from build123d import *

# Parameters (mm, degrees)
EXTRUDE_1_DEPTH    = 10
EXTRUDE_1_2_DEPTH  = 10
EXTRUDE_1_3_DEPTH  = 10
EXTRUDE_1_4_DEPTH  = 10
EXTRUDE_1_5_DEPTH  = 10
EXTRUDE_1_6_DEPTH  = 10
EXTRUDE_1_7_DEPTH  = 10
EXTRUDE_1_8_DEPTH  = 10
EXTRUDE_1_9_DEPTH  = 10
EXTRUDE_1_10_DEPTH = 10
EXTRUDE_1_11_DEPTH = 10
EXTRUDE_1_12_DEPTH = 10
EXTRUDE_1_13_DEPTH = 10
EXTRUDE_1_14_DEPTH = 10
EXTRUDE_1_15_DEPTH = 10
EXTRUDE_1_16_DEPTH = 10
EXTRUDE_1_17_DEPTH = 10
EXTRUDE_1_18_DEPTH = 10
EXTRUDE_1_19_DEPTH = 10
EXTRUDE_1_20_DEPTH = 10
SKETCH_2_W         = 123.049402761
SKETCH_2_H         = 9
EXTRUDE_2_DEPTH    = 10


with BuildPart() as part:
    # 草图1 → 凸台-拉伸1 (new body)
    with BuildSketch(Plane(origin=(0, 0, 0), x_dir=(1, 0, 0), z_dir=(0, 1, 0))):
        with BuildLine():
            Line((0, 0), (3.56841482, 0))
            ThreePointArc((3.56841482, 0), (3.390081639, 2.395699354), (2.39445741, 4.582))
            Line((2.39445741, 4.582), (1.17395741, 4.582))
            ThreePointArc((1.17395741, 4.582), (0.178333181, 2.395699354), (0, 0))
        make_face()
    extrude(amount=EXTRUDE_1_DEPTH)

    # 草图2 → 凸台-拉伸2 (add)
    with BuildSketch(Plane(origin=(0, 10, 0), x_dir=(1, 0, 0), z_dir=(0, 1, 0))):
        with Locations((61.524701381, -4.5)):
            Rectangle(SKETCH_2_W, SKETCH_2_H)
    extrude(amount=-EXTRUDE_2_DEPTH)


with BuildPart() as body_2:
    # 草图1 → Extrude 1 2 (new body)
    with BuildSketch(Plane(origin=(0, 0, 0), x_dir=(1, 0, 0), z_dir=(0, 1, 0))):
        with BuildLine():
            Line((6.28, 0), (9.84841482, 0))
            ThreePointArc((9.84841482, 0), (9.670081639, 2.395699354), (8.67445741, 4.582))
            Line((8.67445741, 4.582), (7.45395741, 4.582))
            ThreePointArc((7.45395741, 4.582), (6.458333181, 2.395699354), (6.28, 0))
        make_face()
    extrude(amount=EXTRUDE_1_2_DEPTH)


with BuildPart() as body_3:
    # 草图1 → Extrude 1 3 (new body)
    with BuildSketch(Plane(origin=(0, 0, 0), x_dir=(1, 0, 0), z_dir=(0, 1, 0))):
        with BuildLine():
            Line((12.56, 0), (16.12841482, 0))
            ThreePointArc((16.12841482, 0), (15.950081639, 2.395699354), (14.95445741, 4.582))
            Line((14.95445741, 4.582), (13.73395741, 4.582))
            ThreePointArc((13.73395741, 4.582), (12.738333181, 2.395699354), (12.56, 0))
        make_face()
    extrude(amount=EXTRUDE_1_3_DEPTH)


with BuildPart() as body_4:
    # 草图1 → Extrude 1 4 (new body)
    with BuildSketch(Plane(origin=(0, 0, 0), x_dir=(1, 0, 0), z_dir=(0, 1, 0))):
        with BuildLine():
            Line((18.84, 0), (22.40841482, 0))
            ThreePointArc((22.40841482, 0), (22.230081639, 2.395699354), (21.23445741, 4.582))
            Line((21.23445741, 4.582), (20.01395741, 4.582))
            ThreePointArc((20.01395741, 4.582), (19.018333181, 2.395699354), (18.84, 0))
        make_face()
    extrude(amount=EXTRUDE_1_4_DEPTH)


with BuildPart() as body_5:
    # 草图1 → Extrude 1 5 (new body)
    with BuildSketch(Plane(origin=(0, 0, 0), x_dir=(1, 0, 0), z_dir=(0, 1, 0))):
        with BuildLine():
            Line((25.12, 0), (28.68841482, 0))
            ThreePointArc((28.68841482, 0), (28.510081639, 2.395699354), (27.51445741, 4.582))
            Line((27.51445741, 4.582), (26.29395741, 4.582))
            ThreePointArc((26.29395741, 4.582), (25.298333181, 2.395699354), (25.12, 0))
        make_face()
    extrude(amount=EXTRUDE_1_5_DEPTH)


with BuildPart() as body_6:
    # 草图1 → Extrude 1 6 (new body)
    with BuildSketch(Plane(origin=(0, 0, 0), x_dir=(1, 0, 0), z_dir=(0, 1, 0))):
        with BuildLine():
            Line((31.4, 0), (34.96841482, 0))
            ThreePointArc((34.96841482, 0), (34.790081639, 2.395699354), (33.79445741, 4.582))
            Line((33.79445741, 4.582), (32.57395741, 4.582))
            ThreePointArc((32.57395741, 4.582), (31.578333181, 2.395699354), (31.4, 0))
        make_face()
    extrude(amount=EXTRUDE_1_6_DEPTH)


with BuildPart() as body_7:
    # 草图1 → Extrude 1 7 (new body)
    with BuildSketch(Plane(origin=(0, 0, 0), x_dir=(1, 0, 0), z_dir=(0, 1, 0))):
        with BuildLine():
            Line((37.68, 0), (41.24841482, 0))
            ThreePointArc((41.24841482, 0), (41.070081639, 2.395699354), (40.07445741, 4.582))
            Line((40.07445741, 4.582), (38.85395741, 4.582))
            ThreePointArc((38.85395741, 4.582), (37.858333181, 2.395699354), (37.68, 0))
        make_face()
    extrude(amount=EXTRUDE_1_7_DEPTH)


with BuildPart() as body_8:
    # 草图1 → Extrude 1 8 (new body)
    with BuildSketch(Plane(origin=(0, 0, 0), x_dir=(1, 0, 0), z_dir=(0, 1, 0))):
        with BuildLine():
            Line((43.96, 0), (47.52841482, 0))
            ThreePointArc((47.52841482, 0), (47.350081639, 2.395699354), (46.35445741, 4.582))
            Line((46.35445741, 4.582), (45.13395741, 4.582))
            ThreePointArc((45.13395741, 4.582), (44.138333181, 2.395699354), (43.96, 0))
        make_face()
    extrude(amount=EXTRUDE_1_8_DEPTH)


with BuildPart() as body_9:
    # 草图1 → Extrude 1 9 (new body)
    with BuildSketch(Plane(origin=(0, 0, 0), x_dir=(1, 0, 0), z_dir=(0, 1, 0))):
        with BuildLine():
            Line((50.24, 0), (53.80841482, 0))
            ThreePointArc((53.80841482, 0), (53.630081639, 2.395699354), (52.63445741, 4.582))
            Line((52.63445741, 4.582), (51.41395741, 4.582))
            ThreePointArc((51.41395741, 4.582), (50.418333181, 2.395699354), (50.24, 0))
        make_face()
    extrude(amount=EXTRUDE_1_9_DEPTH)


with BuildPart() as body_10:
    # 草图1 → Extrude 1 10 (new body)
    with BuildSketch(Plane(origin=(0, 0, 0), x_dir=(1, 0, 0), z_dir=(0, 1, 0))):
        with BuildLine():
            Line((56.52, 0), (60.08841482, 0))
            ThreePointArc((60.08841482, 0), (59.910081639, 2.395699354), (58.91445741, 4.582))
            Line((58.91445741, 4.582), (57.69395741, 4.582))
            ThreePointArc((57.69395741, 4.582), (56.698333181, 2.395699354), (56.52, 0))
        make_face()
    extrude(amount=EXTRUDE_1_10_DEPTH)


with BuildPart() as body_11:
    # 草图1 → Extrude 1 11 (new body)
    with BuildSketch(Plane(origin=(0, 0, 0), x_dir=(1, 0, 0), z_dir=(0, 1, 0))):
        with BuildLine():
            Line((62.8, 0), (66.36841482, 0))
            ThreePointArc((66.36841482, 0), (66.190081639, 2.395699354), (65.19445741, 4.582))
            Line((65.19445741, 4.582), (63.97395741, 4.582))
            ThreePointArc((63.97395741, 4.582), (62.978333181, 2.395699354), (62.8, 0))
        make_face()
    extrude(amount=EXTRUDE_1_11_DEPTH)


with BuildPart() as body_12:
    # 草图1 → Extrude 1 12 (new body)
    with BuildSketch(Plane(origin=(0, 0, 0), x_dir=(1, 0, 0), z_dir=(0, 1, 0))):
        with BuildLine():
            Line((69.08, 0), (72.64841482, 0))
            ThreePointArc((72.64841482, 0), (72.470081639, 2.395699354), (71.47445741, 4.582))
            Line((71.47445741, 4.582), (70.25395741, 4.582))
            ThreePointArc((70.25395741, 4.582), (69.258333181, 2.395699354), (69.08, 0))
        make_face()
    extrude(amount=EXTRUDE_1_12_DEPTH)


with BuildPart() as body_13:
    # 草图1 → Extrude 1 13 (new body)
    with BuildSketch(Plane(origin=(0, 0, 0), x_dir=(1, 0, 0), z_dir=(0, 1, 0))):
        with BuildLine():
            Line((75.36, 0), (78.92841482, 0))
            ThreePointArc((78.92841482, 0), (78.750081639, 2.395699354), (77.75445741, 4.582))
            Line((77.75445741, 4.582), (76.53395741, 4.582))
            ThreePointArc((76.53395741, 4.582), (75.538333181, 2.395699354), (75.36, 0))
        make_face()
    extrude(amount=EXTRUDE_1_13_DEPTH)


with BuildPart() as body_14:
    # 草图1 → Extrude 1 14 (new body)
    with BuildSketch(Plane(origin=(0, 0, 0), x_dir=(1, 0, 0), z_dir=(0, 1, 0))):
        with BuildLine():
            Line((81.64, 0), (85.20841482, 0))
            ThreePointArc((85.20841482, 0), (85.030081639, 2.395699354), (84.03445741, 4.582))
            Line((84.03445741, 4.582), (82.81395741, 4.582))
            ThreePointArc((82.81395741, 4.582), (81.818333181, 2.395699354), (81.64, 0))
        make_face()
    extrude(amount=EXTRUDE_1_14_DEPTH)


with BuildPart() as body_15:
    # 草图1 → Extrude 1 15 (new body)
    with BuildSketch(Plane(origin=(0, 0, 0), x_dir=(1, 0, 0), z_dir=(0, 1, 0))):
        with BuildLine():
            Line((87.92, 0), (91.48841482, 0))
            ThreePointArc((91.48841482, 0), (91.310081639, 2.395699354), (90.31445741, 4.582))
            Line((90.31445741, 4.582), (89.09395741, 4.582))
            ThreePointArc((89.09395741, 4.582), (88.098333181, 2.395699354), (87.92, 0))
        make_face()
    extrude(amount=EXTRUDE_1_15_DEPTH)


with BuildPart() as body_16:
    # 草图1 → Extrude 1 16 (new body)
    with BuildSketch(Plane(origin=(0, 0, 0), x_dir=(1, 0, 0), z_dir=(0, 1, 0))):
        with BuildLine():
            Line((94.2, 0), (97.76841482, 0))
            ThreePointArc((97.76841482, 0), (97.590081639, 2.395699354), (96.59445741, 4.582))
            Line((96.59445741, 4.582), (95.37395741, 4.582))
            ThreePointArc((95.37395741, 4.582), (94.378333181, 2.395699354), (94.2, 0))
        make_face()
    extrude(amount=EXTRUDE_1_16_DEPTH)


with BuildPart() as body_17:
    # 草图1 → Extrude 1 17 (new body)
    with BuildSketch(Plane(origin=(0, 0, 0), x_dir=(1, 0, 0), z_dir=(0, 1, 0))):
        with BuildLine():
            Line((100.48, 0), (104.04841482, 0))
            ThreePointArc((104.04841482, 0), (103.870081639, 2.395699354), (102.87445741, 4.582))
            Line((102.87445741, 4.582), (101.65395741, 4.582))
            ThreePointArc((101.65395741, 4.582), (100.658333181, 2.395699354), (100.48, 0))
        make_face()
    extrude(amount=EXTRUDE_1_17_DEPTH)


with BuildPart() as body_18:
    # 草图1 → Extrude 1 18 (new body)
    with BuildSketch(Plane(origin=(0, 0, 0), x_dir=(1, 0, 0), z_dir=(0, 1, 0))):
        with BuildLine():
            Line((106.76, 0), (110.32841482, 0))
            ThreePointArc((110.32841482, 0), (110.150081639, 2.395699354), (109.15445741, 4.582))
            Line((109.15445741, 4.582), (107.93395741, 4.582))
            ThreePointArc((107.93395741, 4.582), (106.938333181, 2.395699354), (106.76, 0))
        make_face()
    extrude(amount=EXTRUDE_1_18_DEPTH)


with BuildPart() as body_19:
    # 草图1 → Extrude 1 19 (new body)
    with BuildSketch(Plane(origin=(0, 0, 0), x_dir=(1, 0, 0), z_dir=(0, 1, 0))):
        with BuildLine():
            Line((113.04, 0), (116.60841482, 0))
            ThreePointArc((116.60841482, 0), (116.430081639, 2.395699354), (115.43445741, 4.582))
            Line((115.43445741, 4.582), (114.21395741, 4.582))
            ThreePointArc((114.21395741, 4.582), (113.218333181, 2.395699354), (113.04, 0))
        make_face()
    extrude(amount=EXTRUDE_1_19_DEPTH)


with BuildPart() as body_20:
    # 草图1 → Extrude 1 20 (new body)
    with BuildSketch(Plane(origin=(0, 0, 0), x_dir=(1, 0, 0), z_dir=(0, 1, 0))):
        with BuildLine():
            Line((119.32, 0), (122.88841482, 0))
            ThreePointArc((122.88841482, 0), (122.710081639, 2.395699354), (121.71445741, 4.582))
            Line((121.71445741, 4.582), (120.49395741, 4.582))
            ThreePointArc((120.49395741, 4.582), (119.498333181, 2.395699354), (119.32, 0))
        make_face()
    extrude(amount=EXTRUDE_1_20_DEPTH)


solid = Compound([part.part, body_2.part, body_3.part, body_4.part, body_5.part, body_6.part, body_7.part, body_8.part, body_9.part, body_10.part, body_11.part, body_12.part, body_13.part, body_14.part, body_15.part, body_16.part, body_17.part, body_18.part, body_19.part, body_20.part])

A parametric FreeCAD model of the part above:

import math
import FreeCAD as App
import Part
import Sketcher


def add_polygon(sketch, points):
    """Adds a closed chain of lines whose ends are joined by coincident constraints."""
    first, n = sketch.GeometryCount, len(points)
    for a, b in zip(points, points[1:] + points[:1]):
        sketch.addGeometry(Part.LineSegment(App.Vector(*a, 0), App.Vector(*b, 0)), False)
    for i in range(n):
        sketch.addConstraint(Sketcher.Constraint("Coincident", first + i, 2, first + (i + 1) % n, 1))

doc = App.newDocument("Part")
params = doc.addObject("Spreadsheet::Sheet", "Params")
for row, (alias, value) in enumerate([
    ("pad1_length", "10 mm"),
    ("sketch2_height", "9 mm"),
    ("pad2_length", "10 mm"),
    ("pad3_length", "10 mm"),
    ("pad4_length", "10 mm"),
    ("pad5_length", "10 mm"),
    ("pad6_length", "10 mm"),
    ("pad7_length", "10 mm"),
    ("pad8_length", "10 mm"),
    ("pad9_length", "10 mm"),
    ("pad10_length", "10 mm"),
    ("pad11_length", "10 mm"),
    ("pad12_length", "10 mm"),
    ("pad13_length", "10 mm"),
    ("pad14_length", "10 mm"),
    ("pad15_length", "10 mm"),
    ("pad16_length", "10 mm"),
    ("pad17_length", "10 mm"),
    ("pad18_length", "10 mm"),
    ("pad19_length", "10 mm"),
    ("pad20_length", "10 mm"),
    ("pad21_length", "10 mm"),
], start=1):
    params.set(f"A{row}", alias)
    params.set(f"B{row}", "=" + value)
    params.setAlias(f"B{row}", alias)

body = doc.addObject("PartDesign::Body", "Body")

# Sketch on XZ plane
sketch1 = doc.addObject("Sketcher::SketchObject", "Sketch")
body.addObject(sketch1)
sketch1.AttachmentSupport = (doc.XZ_Plane, [""])
sketch1.MapMode = "FlatFace"
sketch1.addGeometry([
    Part.LineSegment(App.Vector(0, 0, 0), App.Vector(3.6, 0, 0)),
    Part.ArcOfCircle(Part.Circle(App.Vector(-3.2, -0.7, 0), App.Vector(0, 0, 1), 6.8), math.radians(-35), math.radians(6)),
    Part.LineSegment(App.Vector(2.4, -4.6, 0), App.Vector(1.2, -4.6, 0)),
    Part.ArcOfCircle(Part.Circle(App.Vector(6.8, -0.7, 0), App.Vector(0, 0, 1), 6.8), math.radians(174), math.radians(215)),
], False)
sketch1.addConstraint([
    Sketcher.Constraint("Coincident", 0, 2, 1, 2),
    Sketcher.Constraint("Coincident", 1, 1, 2, 1),
    Sketcher.Constraint("Coincident", 2, 2, 3, 2),
    Sketcher.Constraint("Coincident", 3, 1, 0, 1),
    Sketcher.Constraint("Horizontal", 0),
    Sketcher.Constraint("Horizontal", 2),
    Sketcher.Constraint("Coincident", 3, 1, -1, 1),
    Sketcher.Constraint("Equal", 1, 3),
    Sketcher.Constraint("Horizontal", 1, 3, 3, 3),
    Sketcher.Constraint("DistanceX", 2, 2, 2, 1, 1.2205),
    Sketcher.Constraint("DistanceY", 1, 1, -1, 1, 4.582),
    Sketcher.Constraint("Radius", 1, 6.840403),
    Sketcher.Constraint("DistanceX", 0, 1, 0, 2, 3.568415),
])
pad1 = doc.addObject("PartDesign::Pad", "Pad")
body.addObject(pad1)
pad1.Profile = sketch1
pad1.setExpression("Length", "Params.pad1_length")
pad1.Reversed = True

# Sketch on XZ plane
sketch2 = doc.addObject("Sketcher::SketchObject", "Sketch001")
body.addObject(sketch2)
sketch2.AttachmentSupport = (doc.XZ_Plane, [""])
sketch2.MapMode = "FlatFace"
sketch2.AttachmentOffset = App.Placement(App.Vector(0, 0, -10), App.Rotation())
add_polygon(sketch2, [(0, 0), (0, 9), (123, 9), (123, 0)])  # lines 0-3
sketch2.addConstraint([
    Sketcher.Constraint("Vertical", 0),
    Sketcher.Constraint("Horizontal", 1),
    Sketcher.Constraint("Vertical", 2),
    Sketcher.Constraint("Horizontal", 3),
    Sketcher.Constraint("Coincident", 3, 2, -1, 1),
    Sketcher.Constraint("DistanceY", 0, 1, 0, 2, 9.0),
    Sketcher.Constraint("DistanceX", 1, 1, 1, 2, 123.049403),
])
sketch2.setExpression("Constraints[9]", "Params.sketch2_height")
pad2 = doc.addObject("PartDesign::Pad", "Pad001")
body.addObject(pad2)
pad2.Profile = sketch2
pad2.setExpression("Length", "Params.pad2_length")
body2 = doc.addObject("PartDesign::Body", "Body001")

# Sketch on XZ plane
sketch3 = doc.addObject("Sketcher::SketchObject", "Sketch002")
body2.addObject(sketch3)
sketch3.AttachmentSupport = (doc.getObject("XZ_Plane001"), [""])
sketch3.MapMode = "FlatFace"
sketch3.addGeometry([
    Part.LineSegment(App.Vector(6.3, 0, 0), App.Vector(9.8, 0, 0)),
    Part.ArcOfCircle(Part.Circle(App.Vector(3, -0.7, 0), App.Vector(0, 0, 1), 6.8), math.radians(-35), math.radians(6)),
    Part.LineSegment(App.Vector(8.7, -4.6, 0), App.Vector(7.5, -4.6, 0)),
    Part.ArcOfCircle(Part.Circle(App.Vector(13.1, -0.7, 0), App.Vector(0, 0, 1), 6.8), math.radians(174), math.radians(215)),
], False)
sketch3.addConstraint([
    Sketcher.Constraint("Coincident", 0, 2, 1, 2),
    Sketcher.Constraint("Coincident", 1, 1, 2, 1),
    Sketcher.Constraint("Coincident", 2, 2, 3, 2),
    Sketcher.Constraint("Coincident", 3, 1, 0, 1),
    Sketcher.Constraint("Horizontal", 0),
    Sketcher.Constraint("Horizontal", 2),
    Sketcher.Constraint("Equal", 1, 3),
    Sketcher.Constraint("PointOnObject", 0, 2, -1),
    Sketcher.Constraint("Horizontal", 1, 3, 3, 3),
    Sketcher.Constraint("DistanceX", -1, 1, 3, 1, 6.28),
    Sketcher.Constraint("DistanceX", 2, 2, 2, 1, 1.2205),
    Sketcher.Constraint("DistanceY", 1, 1, -1, 1, 4.582),
    Sketcher.Constraint("Radius", 1, 6.840403),
    Sketcher.Constraint("DistanceX", 0, 1, 0, 2, 3.568415),
])
pad3 = doc.addObject("PartDesign::Pad", "Pad002")
body2.addObject(pad3)
pad3.Profile = sketch3
pad3.setExpression("Length", "Params.pad3_length")
pad3.Reversed = True
body3 = doc.addObject("PartDesign::Body", "Body002")

# Sketch on XZ plane
sketch4 = doc.addObject("Sketcher::SketchObject", "Sketch003")
body3.addObject(sketch4)
sketch4.AttachmentSupport = (doc.getObject("XZ_Plane002"), [""])
sketch4.MapMode = "FlatFace"
sketch4.addGeometry([
    Part.LineSegment(App.Vector(12.6, 0, 0), App.Vector(16.1, 0, 0)),
    Part.ArcOfCircle(Part.Circle(App.Vector(9.3, -0.7, 0), App.Vector(0, 0, 1), 6.8), math.radians(-35), math.radians(6)),
    Part.LineSegment(App.Vector(15, -4.6, 0), App.Vector(13.7, -4.6, 0)),
    Part.ArcOfCircle(Part.Circle(App.Vector(19.4, -0.7, 0), App.Vector(0, 0, 1), 6.8), math.radians(174), math.radians(215)),
], False)
sketch4.addConstraint([
    Sketcher.Constraint("Coincident", 0, 2, 1, 2),
    Sketcher.Constraint("Coincident", 1, 1, 2, 1),
    Sketcher.Constraint("Coincident", 2, 2, 3, 2),
    Sketcher.Constraint("Coincident", 3, 1, 0, 1),
    Sketcher.Constraint("Horizontal", 0),
    Sketcher.Constraint("Horizontal", 2),
    Sketcher.Constraint("Equal", 1, 3),
    Sketcher.Constraint("PointOnObject", 0, 2, -1),
    Sketcher.Constraint("Horizontal", 1, 3, 3, 3),
    Sketcher.Constraint("DistanceX", -1, 1, 3, 1, 12.56),
    Sketcher.Constraint("DistanceX", 2, 2, 2, 1, 1.2205),
    Sketcher.Constraint("DistanceY", 1, 1, -1, 1, 4.582),
    Sketcher.Constraint("Radius", 1, 6.840403),
    Sketcher.Constraint("DistanceX", 0, 1, 0, 2, 3.568415),
])
pad4 = doc.addObject("PartDesign::Pad", "Pad003")
body3.addObject(pad4)
pad4.Profile = sketch4
pad4.setExpression("Length", "Params.pad4_length")
pad4.Reversed = True
body4 = doc.addObject("PartDesign::Body", "Body003")

# Sketch on XZ plane
sketch5 = doc.addObject("Sketcher::SketchObject", "Sketch004")
body4.addObject(sketch5)
sketch5.AttachmentSupport = (doc.getObject("XZ_Plane003"), [""])
sketch5.MapMode = "FlatFace"
sketch5.addGeometry([
    Part.LineSegment(App.Vector(18.8, 0, 0), App.Vector(22.4, 0, 0)),
    Part.ArcOfCircle(Part.Circle(App.Vector(15.6, -0.7, 0), App.Vector(0, 0, 1), 6.8), math.radians(-35), math.radians(6)),
    Part.LineSegment(App.Vector(21.2, -4.6, 0), App.Vector(20, -4.6, 0)),
    Part.ArcOfCircle(Part.Circle(App.Vector(25.6, -0.7, 0), App.Vector(0, 0, 1), 6.8), math.radians(174), math.radians(215)),
], False)
sketch5.addConstraint([
    Sketcher.Constraint("Coincident", 0, 2, 1, 2),
    Sketcher.Constraint("Coincident", 1, 1, 2, 1),
    Sketcher.Constraint("Coincident", 2, 2, 3, 2),
    Sketcher.Constraint("Coincident", 3, 1, 0, 1),
    Sketcher.Constraint("Horizontal", 0),
    Sketcher.Constraint("Horizontal", 2),
    Sketcher.Constraint("Equal", 1, 3),
    Sketcher.Constraint("PointOnObject", 0, 2, -1),
    Sketcher.Constraint("Horizontal", 1, 3, 3, 3),
    Sketcher.Constraint("DistanceX", -1, 1, 3, 1, 18.84),
    Sketcher.Constraint("DistanceX", 2, 2, 2, 1, 1.2205),
    Sketcher.Constraint("DistanceY", 1, 1, -1, 1, 4.582),
    Sketcher.Constraint("Radius", 1, 6.840403),
    Sketcher.Constraint("DistanceX", 0, 1, 0, 2, 3.568415),
])
pad5 = doc.addObject("PartDesign::Pad", "Pad004")
body4.addObject(pad5)
pad5.Profile = sketch5
pad5.setExpression("Length", "Params.pad5_length")
pad5.Reversed = True
body5 = doc.addObject("PartDesign::Body", "Body004")

# Sketch on XZ plane
sketch6 = doc.addObject("Sketcher::SketchObject", "Sketch005")
body5.addObject(sketch6)
sketch6.AttachmentSupport = (doc.getObject("XZ_Plane004"), [""])
sketch6.MapMode = "FlatFace"
sketch6.addGeometry([
    Part.LineSegment(App.Vector(25.1, 0, 0), App.Vector(28.7, 0, 0)),
    Part.ArcOfCircle(Part.Circle(App.Vector(21.9, -0.7, 0), App.Vector(0, 0, 1), 6.8), math.radians(-35), math.radians(6)),
    Part.LineSegment(App.Vector(27.5, -4.6, 0), App.Vector(26.3, -4.6, 0)),
    Part.ArcOfCircle(Part.Circle(App.Vector(31.9, -0.7, 0), App.Vector(0, 0, 1), 6.8), math.radians(174), math.radians(215)),
], False)
sketch6.addConstraint([
    Sketcher.Constraint("Coincident", 0, 2, 1, 2),
    Sketcher.Constraint("Coincident", 1, 1, 2, 1),
    Sketcher.Constraint("Coincident", 2, 2, 3, 2),
    Sketcher.Constraint("Coincident", 3, 1, 0, 1),
    Sketcher.Constraint("Horizontal", 0),
    Sketcher.Constraint("Horizontal", 2),
    Sketcher.Constraint("Equal", 1, 3),
    Sketcher.Constraint("PointOnObject", 0, 2, -1),
    Sketcher.Constraint("Horizontal", 1, 3, 3, 3),
    Sketcher.Constraint("DistanceX", -1, 1, 3, 1, 25.12),
    Sketcher.Constraint("DistanceX", 2, 2, 2, 1, 1.2205),
    Sketcher.Constraint("DistanceY", 1, 1, -1, 1, 4.582),
    Sketcher.Constraint("Radius", 1, 6.840403),
    Sketcher.Constraint("DistanceX", 0, 1, 0, 2, 3.568415),
])
pad6 = doc.addObject("PartDesign::Pad", "Pad005")
body5.addObject(pad6)
pad6.Profile = sketch6
pad6.setExpression("Length", "Params.pad6_length")
pad6.Reversed = True
body6 = doc.addObject("PartDesign::Body", "Body005")

# Sketch on XZ plane
sketch7 = doc.addObject("Sketcher::SketchObject", "Sketch006")
body6.addObject(sketch7)
sketch7.AttachmentSupport = (doc.getObject("XZ_Plane005"), [""])
sketch7.MapMode = "FlatFace"
sketch7.addGeometry([
    Part.LineSegment(App.Vector(31.4, 0, 0), App.Vector(35, 0, 0)),
    Part.ArcOfCircle(Part.Circle(App.Vector(28.2, -0.7, 0), App.Vector(0, 0, 1), 6.8), math.radians(-35), math.radians(6)),
    Part.LineSegment(App.Vector(33.8, -4.6, 0), App.Vector(32.6, -4.6, 0)),
    Part.ArcOfCircle(Part.Circle(App.Vector(38.2, -0.7, 0), App.Vector(0, 0, 1), 6.8), math.radians(174), math.radians(215)),
], False)
sketch7.addConstraint([
    Sketcher.Constraint("Coincident", 0, 2, 1, 2),
    Sketcher.Constraint("Coincident", 1, 1, 2, 1),
    Sketcher.Constraint("Coincident", 2, 2, 3, 2),
    Sketcher.Constraint("Coincident", 3, 1, 0, 1),
    Sketcher.Constraint("Horizontal", 0),
    Sketcher.Constraint("Horizontal", 2),
    Sketcher.Constraint("Equal", 1, 3),
    Sketcher.Constraint("PointOnObject", 0, 2, -1),
    Sketcher.Constraint("Horizontal", 1, 3, 3, 3),
    Sketcher.Constraint("DistanceX", -1, 1, 3, 1, 31.4),
    Sketcher.Constraint("DistanceX", 2, 2, 2, 1, 1.2205),
    Sketcher.Constraint("DistanceY", 1, 1, -1, 1, 4.582),
    Sketcher.Constraint("Radius", 1, 6.840403),
    Sketcher.Constraint("DistanceX", 0, 1, 0, 2, 3.568415),
])
pad7 = doc.addObject("PartDesign::Pad", "Pad006")
body6.addObject(pad7)
pad7.Profile = sketch7
pad7.setExpression("Length", "Params.pad7_length")
pad7.Reversed = True
body7 = doc.addObject("PartDesign::Body", "Body006")

# Sketch on XZ plane
sketch8 = doc.addObject("Sketcher::SketchObject", "Sketch007")
body7.addObject(sketch8)
sketch8.AttachmentSupport = (doc.getObject("XZ_Plane006"), [""])
sketch8.MapMode = "FlatFace"
sketch8.addGeometry([
    Part.LineSegment(App.Vector(37.7, 0, 0), App.Vector(41.2, 0, 0)),
    Part.ArcOfCircle(Part.Circle(App.Vector(34.4, -0.7, 0), App.Vector(0, 0, 1), 6.8), math.radians(-35), math.radians(6)),
    Part.LineSegment(App.Vector(40.1, -4.6, 0), App.Vector(38.9, -4.6, 0)),
    Part.ArcOfCircle(Part.Circle(App.Vector(44.5, -0.7, 0), App.Vector(0, 0, 1), 6.8), math.radians(174), math.radians(215)),
], False)
sketch8.addConstraint([
    Sketcher.Constraint("Coincident", 0, 2, 1, 2),
    Sketcher.Constraint("Coincident", 1, 1, 2, 1),
    Sketcher.Constraint("Coincident", 2, 2, 3, 2),
    Sketcher.Constraint("Coincident", 3, 1, 0, 1),
    Sketcher.Constraint("Horizontal", 0),
    Sketcher.Constraint("Horizontal", 2),
    Sketcher.Constraint("Equal", 1, 3),
    Sketcher.Constraint("PointOnObject", 0, 2, -1),
    Sketcher.Constraint("Horizontal", 1, 3, 3, 3),
    Sketcher.Constraint("DistanceX", -1, 1, 3, 1, 37.68),
    Sketcher.Constraint("DistanceX", 2, 2, 2, 1, 1.2205),
    Sketcher.Constraint("DistanceY", 1, 1, -1, 1, 4.582),
    Sketcher.Constraint("Radius", 1, 6.840403),
    Sketcher.Constraint("DistanceX", 0, 1, 0, 2, 3.568415),
])
pad8 = doc.addObject("PartDesign::Pad", "Pad007")
body7.addObject(pad8)
pad8.Profile = sketch8
pad8.setExpression("Length", "Params.pad8_length")
pad8.Reversed = True
body8 = doc.addObject("PartDesign::Body", "Body007")

# Sketch on XZ plane
sketch9 = doc.addObject("Sketcher::SketchObject", "Sketch008")
body8.addObject(sketch9)
sketch9.AttachmentSupport = (doc.getObject("XZ_Plane007"), [""])
sketch9.MapMode = "FlatFace"
sketch9.addGeometry([
    Part.LineSegment(App.Vector(44, 0, 0), App.Vector(47.5, 0, 0)),
    Part.ArcOfCircle(Part.Circle(App.Vector(40.7, -0.7, 0), App.Vector(0, 0, 1), 6.8), math.radians(-35), math.radians(6)),
    Part.LineSegment(App.Vector(46.4, -4.6, 0), App.Vector(45.1, -4.6, 0)),
    Part.ArcOfCircle(Part.Circle(App.Vector(50.8, -0.7, 0), App.Vector(0, 0, 1), 6.8), math.radians(174), math.radians(215)),
], False)
sketch9.addConstraint([
    Sketcher.Constraint("Coincident", 0, 2, 1, 2),
    Sketcher.Constraint("Coincident", 1, 1, 2, 1),
    Sketcher.Constraint("Coincident", 2, 2, 3, 2),
    Sketcher.Constraint("Coincident", 3, 1, 0, 1),
    Sketcher.Constraint("Horizontal", 0),
    Sketcher.Constraint("Horizontal", 2),
    Sketcher.Constraint("Equal", 1, 3),
    Sketcher.Constraint("PointOnObject", 0, 2, -1),
    Sketcher.Constraint("Horizontal", 1, 3, 3, 3),
    Sketcher.Constraint("DistanceX", -1, 1, 3, 1, 43.96),
    Sketcher.Constraint("DistanceX", 2, 2, 2, 1, 1.2205),
    Sketcher.Constraint("DistanceY", 1, 1, -1, 1, 4.582),
    Sketcher.Constraint("Radius", 1, 6.840403),
    Sketcher.Constraint("DistanceX", 0, 1, 0, 2, 3.568415),
])
pad9 = doc.addObject("PartDesign::Pad", "Pad008")
body8.addObject(pad9)
pad9.Profile = sketch9
pad9.setExpression("Length", "Params.pad9_length")
pad9.Reversed = True
body9 = doc.addObject("PartDesign::Body", "Body008")

# Sketch on XZ plane
sketch10 = doc.addObject("Sketcher::SketchObject", "Sketch009")
body9.addObject(sketch10)
sketch10.AttachmentSupport = (doc.getObject("XZ_Plane008"), [""])
sketch10.MapMode = "FlatFace"
sketch10.addGeometry([
    Part.LineSegment(App.Vector(50.2, 0, 0), App.Vector(53.8, 0, 0)),
    Part.ArcOfCircle(Part.Circle(App.Vector(47, -0.7, 0), App.Vector(0, 0, 1), 6.8), math.radians(-35), math.radians(6)),
    Part.LineSegment(App.Vector(52.6, -4.6, 0), App.Vector(51.4, -4.6, 0)),
    Part.ArcOfCircle(Part.Circle(App.Vector(57, -0.7, 0), App.Vector(0, 0, 1), 6.8), math.radians(174), math.radians(215)),
], False)
sketch10.addConstraint([
    Sketcher.Constraint("Coincident", 0, 2, 1, 2),
    Sketcher.Constraint("Coincident", 1, 1, 2, 1),
    Sketcher.Constraint("Coincident", 2, 2, 3, 2),
    Sketcher.Constraint("Coincident", 3, 1, 0, 1),
    Sketcher.Constraint("Horizontal", 0),
    Sketcher.Constraint("Horizontal", 2),
    Sketcher.Constraint("Equal", 1, 3),
    Sketcher.Constraint("PointOnObject", 0, 2, -1),
    Sketcher.Constraint("Horizontal", 1, 3, 3, 3),
    Sketcher.Constraint("DistanceX", -1, 1, 3, 1, 50.24),
    Sketcher.Constraint("DistanceX", 2, 2, 2, 1, 1.2205),
    Sketcher.Constraint("DistanceY", 1, 1, -1, 1, 4.582),
    Sketcher.Constraint("Radius", 1, 6.840403),
    Sketcher.Constraint("DistanceX", 0, 1, 0, 2, 3.568415),
])
pad10 = doc.addObject("PartDesign::Pad", "Pad009")
body9.addObject(pad10)
pad10.Profile = sketch10
pad10.setExpression("Length", "Params.pad10_length")
pad10.Reversed = True
body10 = doc.addObject("PartDesign::Body", "Body009")

# Sketch on XZ plane
sketch11 = doc.addObject("Sketcher::SketchObject", "Sketch010")
body10.addObject(sketch11)
sketch11.AttachmentSupport = (doc.getObject("XZ_Plane009"), [""])
sketch11.MapMode = "FlatFace"
sketch11.addGeometry([
    Part.LineSegment(App.Vector(56.5, 0, 0), App.Vector(60.1, 0, 0)),
    Part.ArcOfCircle(Part.Circle(App.Vector(53.3, -0.7, 0), App.Vector(0, 0, 1), 6.8), math.radians(-35), math.radians(6)),
    Part.LineSegment(App.Vector(58.9, -4.6, 0), App.Vector(57.7, -4.6, 0)),
    Part.ArcOfCircle(Part.Circle(App.Vector(63.3, -0.7, 0), App.Vector(0, 0, 1), 6.8), math.radians(174), math.radians(215)),
], False)
sketch11.addConstraint([
    Sketcher.Constraint("Coincident", 0, 2, 1, 2),
    Sketcher.Constraint("Coincident", 1, 1, 2, 1),
    Sketcher.Constraint("Coincident", 2, 2, 3, 2),
    Sketcher.Constraint("Coincident", 3, 1, 0, 1),
    Sketcher.Constraint("Horizontal", 0),
    Sketcher.Constraint("Horizontal", 2),
    Sketcher.Constraint("Equal", 1, 3),
    Sketcher.Constraint("PointOnObject", 0, 2, -1),
    Sketcher.Constraint("Horizontal", 1, 3, 3, 3),
    Sketcher.Constraint("DistanceX", -1, 1, 3, 1, 56.52),
    Sketcher.Constraint("DistanceX", 2, 2, 2, 1, 1.2205),
    Sketcher.Constraint("DistanceY", 1, 1, -1, 1, 4.582),
    Sketcher.Constraint("Radius", 1, 6.840403),
    Sketcher.Constraint("DistanceX", 0, 1, 0, 2, 3.568415),
])
pad11 = doc.addObject("PartDesign::Pad", "Pad010")
body10.addObject(pad11)
pad11.Profile = sketch11
pad11.setExpression("Length", "Params.pad11_length")
pad11.Reversed = True
body11 = doc.addObject("PartDesign::Body", "Body010")

# Sketch on XZ plane
sketch12 = doc.addObject("Sketcher::SketchObject", "Sketch011")
body11.addObject(sketch12)
sketch12.AttachmentSupport = (doc.getObject("XZ_Plane010"), [""])
sketch12.MapMode = "FlatFace"
sketch12.addGeometry([
    Part.LineSegment(App.Vector(62.8, 0, 0), App.Vector(66.4, 0, 0)),
    Part.ArcOfCircle(Part.Circle(App.Vector(59.6, -0.7, 0), App.Vector(0, 0, 1), 6.8), math.radians(-35), math.radians(6)),
    Part.LineSegment(App.Vector(65.2, -4.6, 0), App.Vector(64, -4.6, 0)),
    Part.ArcOfCircle(Part.Circle(App.Vector(69.6, -0.7, 0), App.Vector(0, 0, 1), 6.8), math.radians(174), math.radians(215)),
], False)
sketch12.addConstraint([
    Sketcher.Constraint("Coincident", 0, 2, 1, 2),
    Sketcher.Constraint("Coincident", 1, 1, 2, 1),
    Sketcher.Constraint("Coincident", 2, 2, 3, 2),
    Sketcher.Constraint("Coincident", 3, 1, 0, 1),
    Sketcher.Constraint("Horizontal", 0),
    Sketcher.Constraint("Horizontal", 2),
    Sketcher.Constraint("Equal", 1, 3),
    Sketcher.Constraint("PointOnObject", 0, 2, -1),
    Sketcher.Constraint("Horizontal", 1, 3, 3, 3),
    Sketcher.Constraint("DistanceX", -1, 1, 3, 1, 62.8),
    Sketcher.Constraint("DistanceX", 2, 2, 2, 1, 1.2205),
    Sketcher.Constraint("DistanceY", 1, 1, -1, 1, 4.582),
    Sketcher.Constraint("Radius", 1, 6.840403),
    Sketcher.Constraint("DistanceX", 0, 1, 0, 2, 3.568415),
])
pad12 = doc.addObject("PartDesign::Pad", "Pad011")
body11.addObject(pad12)
pad12.Profile = sketch12
pad12.setExpression("Length", "Params.pad12_length")
pad12.Reversed = True
body12 = doc.addObject("PartDesign::Body", "Body011")

# Sketch on XZ plane
sketch13 = doc.addObject("Sketcher::SketchObject", "Sketch012")
body12.addObject(sketch13)
sketch13.AttachmentSupport = (doc.getObject("XZ_Plane011"), [""])
sketch13.MapMode = "FlatFace"
sketch13.addGeometry([
    Part.LineSegment(App.Vector(69.1, 0, 0), App.Vector(72.6, 0, 0)),
    Part.ArcOfCircle(Part.Circle(App.Vector(65.8, -0.7, 0), App.Vector(0, 0, 1), 6.8), math.radians(-35), math.radians(6)),
    Part.LineSegment(App.Vector(71.5, -4.6, 0), App.Vector(70.3, -4.6, 0)),
    Part.ArcOfCircle(Part.Circle(App.Vector(75.9, -0.7, 0), App.Vector(0, 0, 1), 6.8), math.radians(174), math.radians(215)),
], False)
sketch13.addConstraint([
    Sketcher.Constraint("Coincident", 0, 2, 1, 2),
    Sketcher.Constraint("Coincident", 1, 1, 2, 1),
    Sketcher.Constraint("Coincident", 2, 2, 3, 2),
    Sketcher.Constraint("Coincident", 3, 1, 0, 1),
    Sketcher.Constraint("Horizontal", 0),
    Sketcher.Constraint("Horizontal", 2),
    Sketcher.Constraint("Equal", 1, 3),
    Sketcher.Constraint("PointOnObject", 0, 2, -1),
    Sketcher.Constraint("Horizontal", 1, 3, 3, 3),
    Sketcher.Constraint("DistanceX", -1, 1, 3, 1, 69.08),
    Sketcher.Constraint("DistanceX", 2, 2, 2, 1, 1.2205),
    Sketcher.Constraint("DistanceY", 1, 1, -1, 1, 4.582),
    Sketcher.Constraint("Radius", 1, 6.840403),
    Sketcher.Constraint("DistanceX", 0, 1, 0, 2, 3.568415),
])
pad13 = doc.addObject("PartDesign::Pad", "Pad012")
body12.addObject(pad13)
pad13.Profile = sketch13
pad13.setExpression("Length", "Params.pad13_length")
pad13.Reversed = True
body13 = doc.addObject("PartDesign::Body", "Body012")

# Sketch on XZ plane
sketch14 = doc.addObject("Sketcher::SketchObject", "Sketch013")
body13.addObject(sketch14)
sketch14.AttachmentSupport = (doc.getObject("XZ_Plane012"), [""])
sketch14.MapMode = "FlatFace"
sketch14.addGeometry([
    Part.LineSegment(App.Vector(75.4, 0, 0), App.Vector(78.9, 0, 0)),
    Part.ArcOfCircle(Part.Circle(App.Vector(72.1, -0.7, 0), App.Vector(0, 0, 1), 6.8), math.radians(-35), math.radians(6)),
    Part.LineSegment(App.Vector(77.8, -4.6, 0), App.Vector(76.5, -4.6, 0)),
    Part.ArcOfCircle(Part.Circle(App.Vector(82.2, -0.7, 0), App.Vector(0, 0, 1), 6.8), math.radians(174), math.radians(215)),
], False)
sketch14.addConstraint([
    Sketcher.Constraint("Coincident", 0, 2, 1, 2),
    Sketcher.Constraint("Coincident", 1, 1, 2, 1),
    Sketcher.Constraint("Coincident", 2, 2, 3, 2),
    Sketcher.Constraint("Coincident", 3, 1, 0, 1),
    Sketcher.Constraint("Horizontal", 0),
    Sketcher.Constraint("Horizontal", 2),
    Sketcher.Constraint("Equal", 1, 3),
    Sketcher.Constraint("PointOnObject", 0, 2, -1),
    Sketcher.Constraint("Horizontal", 1, 3, 3, 3),
    Sketcher.Constraint("DistanceX", -1, 1, 3, 1, 75.36),
    Sketcher.Constraint("DistanceX", 2, 2, 2, 1, 1.2205),
    Sketcher.Constraint("DistanceY", 1, 1, -1, 1, 4.582),
    Sketcher.Constraint("Radius", 1, 6.840403),
    Sketcher.Constraint("DistanceX", 0, 1, 0, 2, 3.568415),
])
pad14 = doc.addObject("PartDesign::Pad", "Pad013")
body13.addObject(pad14)
pad14.Profile = sketch14
pad14.setExpression("Length", "Params.pad14_length")
pad14.Reversed = True
body14 = doc.addObject("PartDesign::Body", "Body013")

# Sketch on XZ plane
sketch15 = doc.addObject("Sketcher::SketchObject", "Sketch014")
body14.addObject(sketch15)
sketch15.AttachmentSupport = (doc.getObject("XZ_Plane013"), [""])
sketch15.MapMode = "FlatFace"
sketch15.addGeometry([
    Part.LineSegment(App.Vector(81.6, 0, 0), App.Vector(85.2, 0, 0)),
    Part.ArcOfCircle(Part.Circle(App.Vector(78.4, -0.7, 0), App.Vector(0, 0, 1), 6.8), math.radians(-35), math.radians(6)),
    Part.LineSegment(App.Vector(84, -4.6, 0), App.Vector(82.8, -4.6, 0)),
    Part.ArcOfCircle(Part.Circle(App.Vector(88.4, -0.7, 0), App.Vector(0, 0, 1), 6.8), math.radians(174), math.radians(215)),
], False)
sketch15.addConstraint([
    Sketcher.Constraint("Coincident", 0, 2, 1, 2),
    Sketcher.Constraint("Coincident", 1, 1, 2, 1),
    Sketcher.Constraint("Coincident", 2, 2, 3, 2),
    Sketcher.Constraint("Coincident", 3, 1, 0, 1),
    Sketcher.Constraint("Horizontal", 0),
    Sketcher.Constraint("Horizontal", 2),
    Sketcher.Constraint("Equal", 1, 3),
    Sketcher.Constraint("PointOnObject", 0, 2, -1),
    Sketcher.Constraint("Horizontal", 1, 3, 3, 3),
    Sketcher.Constraint("DistanceX", -1, 1, 3, 1, 81.64),
    Sketcher.Constraint("DistanceX", 2, 2, 2, 1, 1.2205),
    Sketcher.Constraint("DistanceY", 1, 1, -1, 1, 4.582),
    Sketcher.Constraint("Radius", 1, 6.840403),
    Sketcher.Constraint("DistanceX", 0, 1, 0, 2, 3.568415),
])
pad15 = doc.addObject("PartDesign::Pad", "Pad014")
body14.addObject(pad15)
pad15.Profile = sketch15
pad15.setExpression("Length", "Params.pad15_length")
pad15.Reversed = True
body15 = doc.addObject("PartDesign::Body", "Body014")

# Sketch on XZ plane
sketch16 = doc.addObject("Sketcher::SketchObject", "Sketch015")
body15.addObject(sketch16)
sketch16.AttachmentSupport = (doc.getObject("XZ_Plane014"), [""])
sketch16.MapMode = "FlatFace"
sketch16.addGeometry([
    Part.LineSegment(App.Vector(87.9, 0, 0), App.Vector(91.5, 0, 0)),
    Part.ArcOfCircle(Part.Circle(App.Vector(84.7, -0.7, 0), App.Vector(0, 0, 1), 6.8), math.radians(-35), math.radians(6)),
    Part.LineSegment(App.Vector(90.3, -4.6, 0), App.Vector(89.1, -4.6, 0)),
    Part.ArcOfCircle(Part.Circle(App.Vector(94.7, -0.7, 0), App.Vector(0, 0, 1), 6.8), math.radians(174), math.radians(215)),
], False)
sketch16.addConstraint([
    Sketcher.Constraint("Coincident", 0, 2, 1, 2),
    Sketcher.Constraint("Coincident", 1, 1, 2, 1),
    Sketcher.Constraint("Coincident", 2, 2, 3, 2),
    Sketcher.Constraint("Coincident", 3, 1, 0, 1),
    Sketcher.Constraint("Horizontal", 0),
    Sketcher.Constraint("Horizontal", 2),
    Sketcher.Constraint("Equal", 1, 3),
    Sketcher.Constraint("PointOnObject", 0, 2, -1),
    Sketcher.Constraint("Horizontal", 1, 3, 3, 3),
    Sketcher.Constraint("DistanceX", -1, 1, 3, 1, 87.92),
    Sketcher.Constraint("DistanceX", 2, 2, 2, 1, 1.2205),
    Sketcher.Constraint("DistanceY", 1, 1, -1, 1, 4.582),
    Sketcher.Constraint("Radius", 1, 6.840403),
    Sketcher.Constraint("DistanceX", 0, 1, 0, 2, 3.568415),
])
pad16 = doc.addObject("PartDesign::Pad", "Pad015")
body15.addObject(pad16)
pad16.Profile = sketch16
pad16.setExpression("Length", "Params.pad16_length")
pad16.Reversed = True
body16 = doc.addObject("PartDesign::Body", "Body015")

# Sketch on XZ plane
sketch17 = doc.addObject("Sketcher::SketchObject", "Sketch016")
body16.addObject(sketch17)
sketch17.AttachmentSupport = (doc.getObject("XZ_Plane015"), [""])
sketch17.MapMode = "FlatFace"
sketch17.addGeometry([
    Part.LineSegment(App.Vector(94.2, 0, 0), App.Vector(97.8, 0, 0)),
    Part.ArcOfCircle(Part.Circle(App.Vector(91, -0.7, 0), App.Vector(0, 0, 1), 6.8), math.radians(-35), math.radians(6)),
    Part.LineSegment(App.Vector(96.6, -4.6, 0), App.Vector(95.4, -4.6, 0)),
    Part.ArcOfCircle(Part.Circle(App.Vector(101, -0.7, 0), App.Vector(0, 0, 1), 6.8), math.radians(174), math.radians(215)),
], False)
sketch17.addConstraint([
    Sketcher.Constraint("Coincident", 0, 2, 1, 2),
    Sketcher.Constraint("Coincident", 1, 1, 2, 1),
    Sketcher.Constraint("Coincident", 2, 2, 3, 2),
    Sketcher.Constraint("Coincident", 3, 1, 0, 1),
    Sketcher.Constraint("Horizontal", 0),
    Sketcher.Constraint("Horizontal", 2),
    Sketcher.Constraint("Equal", 1, 3),
    Sketcher.Constraint("PointOnObject", 0, 2, -1),
    Sketcher.Constraint("Horizontal", 1, 3, 3, 3),
    Sketcher.Constraint("DistanceX", -1, 1, 3, 1, 94.2),
    Sketcher.Constraint("DistanceX", 2, 2, 2, 1, 1.2205),
    Sketcher.Constraint("DistanceY", 1, 1, -1, 1, 4.582),
    Sketcher.Constraint("Radius", 1, 6.840403),
    Sketcher.Constraint("DistanceX", 0, 1, 0, 2, 3.568415),
])
pad17 = doc.addObject("PartDesign::Pad", "Pad016")
body16.addObject(pad17)
pad17.Profile = sketch17
pad17.setExpression("Length", "Params.pad17_length")
pad17.Reversed = True
body17 = doc.addObject("PartDesign::Body", "Body016")

# Sketch on XZ plane
sketch18 = doc.addObject("Sketcher::SketchObject", "Sketch017")
body17.addObject(sketch18)
sketch18.AttachmentSupport = (doc.getObject("XZ_Plane016"), [""])
sketch18.MapMode = "FlatFace"
sketch18.addGeometry([
    Part.LineSegment(App.Vector(100.5, 0, 0), App.Vector(104, 0, 0)),
    Part.ArcOfCircle(Part.Circle(App.Vector(97.2, -0.7, 0), App.Vector(0, 0, 1), 6.8), math.radians(-35), math.radians(6)),
    Part.LineSegment(App.Vector(102.9, -4.6, 0), App.Vector(101.7, -4.6, 0)),
    Part.ArcOfCircle(Part.Circle(App.Vector(107.3, -0.7, 0), App.Vector(0, 0, 1), 6.8), math.radians(174), math.radians(215)),
], False)
sketch18.addConstraint([
    Sketcher.Constraint("Coincident", 0, 2, 1, 2),
    Sketcher.Constraint("Coincident", 1, 1, 2, 1),
    Sketcher.Constraint("Coincident", 2, 2, 3, 2),
    Sketcher.Constraint("Coincident", 3, 1, 0, 1),
    Sketcher.Constraint("Horizontal", 0),
    Sketcher.Constraint("Horizontal", 2),
    Sketcher.Constraint("Equal", 1, 3),
    Sketcher.Constraint("PointOnObject", 0, 2, -1),
    Sketcher.Constraint("Horizontal", 1, 3, 3, 3),
    Sketcher.Constraint("DistanceX", -1, 1, 3, 1, 100.48),
    Sketcher.Constraint("DistanceX", 2, 2, 2, 1, 1.2205),
    Sketcher.Constraint("DistanceY", 1, 1, -1, 1, 4.582),
    Sketcher.Constraint("Radius", 1, 6.840403),
    Sketcher.Constraint("DistanceX", 0, 1, 0, 2, 3.568415),
])
pad18 = doc.addObject("PartDesign::Pad", "Pad017")
body17.addObject(pad18)
pad18.Profile = sketch18
pad18.setExpression("Length", "Params.pad18_length")
pad18.Reversed = True
body18 = doc.addObject("PartDesign::Body", "Body017")

# Sketch on XZ plane
sketch19 = doc.addObject("Sketcher::SketchObject", "Sketch018")
body18.addObject(sketch19)
sketch19.AttachmentSupport = (doc.getObject("XZ_Plane017"), [""])
sketch19.MapMode = "FlatFace"
sketch19.addGeometry([
    Part.LineSegment(App.Vector(106.8, 0, 0), App.Vector(110.3, 0, 0)),
    Part.ArcOfCircle(Part.Circle(App.Vector(103.5, -0.7, 0), App.Vector(0, 0, 1), 6.8), math.radians(-35), math.radians(6)),
    Part.LineSegment(App.Vector(109.2, -4.6, 0), App.Vector(107.9, -4.6, 0)),
    Part.ArcOfCircle(Part.Circle(App.Vector(113.6, -0.7, 0), App.Vector(0, 0, 1), 6.8), math.radians(174), math.radians(215)),
], False)
sketch19.addConstraint([
    Sketcher.Constraint("Coincident", 0, 2, 1, 2),
    Sketcher.Constraint("Coincident", 1, 1, 2, 1),
    Sketcher.Constraint("Coincident", 2, 2, 3, 2),
    Sketcher.Constraint("Coincident", 3, 1, 0, 1),
    Sketcher.Constraint("Horizontal", 0),
    Sketcher.Constraint("Horizontal", 2),
    Sketcher.Constraint("Equal", 1, 3),
    Sketcher.Constraint("PointOnObject", 0, 2, -1),
    Sketcher.Constraint("Horizontal", 1, 3, 3, 3),
    Sketcher.Constraint("DistanceX", -1, 1, 3, 1, 106.76),
    Sketcher.Constraint("DistanceX", 2, 2, 2, 1, 1.2205),
    Sketcher.Constraint("DistanceY", 1, 1, -1, 1, 4.582),
    Sketcher.Constraint("Radius", 1, 6.840403),
    Sketcher.Constraint("DistanceX", 0, 1, 0, 2, 3.568415),
])
pad19 = doc.addObject("PartDesign::Pad", "Pad018")
body18.addObject(pad19)
pad19.Profile = sketch19
pad19.setExpression("Length", "Params.pad19_length")
pad19.Reversed = True
body19 = doc.addObject("PartDesign::Body", "Body018")

# Sketch on XZ plane
sketch20 = doc.addObject("Sketcher::SketchObject", "Sketch019")
body19.addObject(sketch20)
sketch20.AttachmentSupport = (doc.getObject("XZ_Plane018"), [""])
sketch20.MapMode = "FlatFace"
sketch20.addGeometry([
    Part.LineSegment(App.Vector(113, 0, 0), App.Vector(116.6, 0, 0)),
    Part.ArcOfCircle(Part.Circle(App.Vector(109.8, -0.7, 0), App.Vector(0, 0, 1), 6.8), math.radians(-35), math.radians(6)),
    Part.LineSegment(App.Vector(115.4, -4.6, 0), App.Vector(114.2, -4.6, 0)),
    Part.ArcOfCircle(Part.Circle(App.Vector(119.8, -0.7, 0), App.Vector(0, 0, 1), 6.8), math.radians(174), math.radians(215)),
], False)
sketch20.addConstraint([
    Sketcher.Constraint("Coincident", 0, 2, 1, 2),
    Sketcher.Constraint("Coincident", 1, 1, 2, 1),
    Sketcher.Constraint("Coincident", 2, 2, 3, 2),
    Sketcher.Constraint("Coincident", 3, 1, 0, 1),
    Sketcher.Constraint("Horizontal", 0),
    Sketcher.Constraint("Horizontal", 2),
    Sketcher.Constraint("Equal", 1, 3),
    Sketcher.Constraint("PointOnObject", 0, 2, -1),
    Sketcher.Constraint("Horizontal", 1, 3, 3, 3),
    Sketcher.Constraint("DistanceX", -1, 1, 3, 1, 113.04),
    Sketcher.Constraint("DistanceX", 2, 2, 2, 1, 1.2205),
    Sketcher.Constraint("DistanceY", 1, 1, -1, 1, 4.582),
    Sketcher.Constraint("Radius", 1, 6.840403),
    Sketcher.Constraint("DistanceX", 0, 1, 0, 2, 3.568415),
])
pad20 = doc.addObject("PartDesign::Pad", "Pad019")
body19.addObject(pad20)
pad20.Profile = sketch20
pad20.setExpression("Length", "Params.pad20_length")
pad20.Reversed = True
body20 = doc.addObject("PartDesign::Body", "Body019")

# Sketch on XZ plane
sketch21 = doc.addObject("Sketcher::SketchObject", "Sketch020")
body20.addObject(sketch21)
sketch21.AttachmentSupport = (doc.getObject("XZ_Plane019"), [""])
sketch21.MapMode = "FlatFace"
sketch21.addGeometry([
    Part.LineSegment(App.Vector(119.3, 0, 0), App.Vector(122.9, 0, 0)),
    Part.ArcOfCircle(Part.Circle(App.Vector(116.1, -0.7, 0), App.Vector(0, 0, 1), 6.8), math.radians(-35), math.radians(6)),
    Part.LineSegment(App.Vector(121.7, -4.6, 0), App.Vector(120.5, -4.6, 0)),
    Part.ArcOfCircle(Part.Circle(App.Vector(126.1, -0.7, 0), App.Vector(0, 0, 1), 6.8), math.radians(174), math.radians(215)),
], False)
sketch21.addConstraint([
    Sketcher.Constraint("Coincident", 0, 2, 1, 2),
    Sketcher.Constraint("Coincident", 1, 1, 2, 1),
    Sketcher.Constraint("Coincident", 2, 2, 3, 2),
    Sketcher.Constraint("Coincident", 3, 1, 0, 1),
    Sketcher.Constraint("Horizontal", 0),
    Sketcher.Constraint("Horizontal", 2),
    Sketcher.Constraint("Equal", 1, 3),
    Sketcher.Constraint("PointOnObject", 0, 2, -1),
    Sketcher.Constraint("Horizontal", 1, 3, 3, 3),
    Sketcher.Constraint("DistanceX", -1, 1, 3, 1, 119.32),
    Sketcher.Constraint("DistanceX", 2, 2, 2, 1, 1.2205),
    Sketcher.Constraint("DistanceY", 1, 1, -1, 1, 4.582),
    Sketcher.Constraint("Radius", 1, 6.840403),
    Sketcher.Constraint("DistanceX", 0, 1, 0, 2, 3.568415),
])
pad21 = doc.addObject("PartDesign::Pad", "Pad020")
body20.addObject(pad21)
pad21.Profile = sketch21
pad21.setExpression("Length", "Params.pad21_length")
pad21.Reversed = True

doc.recompute()
